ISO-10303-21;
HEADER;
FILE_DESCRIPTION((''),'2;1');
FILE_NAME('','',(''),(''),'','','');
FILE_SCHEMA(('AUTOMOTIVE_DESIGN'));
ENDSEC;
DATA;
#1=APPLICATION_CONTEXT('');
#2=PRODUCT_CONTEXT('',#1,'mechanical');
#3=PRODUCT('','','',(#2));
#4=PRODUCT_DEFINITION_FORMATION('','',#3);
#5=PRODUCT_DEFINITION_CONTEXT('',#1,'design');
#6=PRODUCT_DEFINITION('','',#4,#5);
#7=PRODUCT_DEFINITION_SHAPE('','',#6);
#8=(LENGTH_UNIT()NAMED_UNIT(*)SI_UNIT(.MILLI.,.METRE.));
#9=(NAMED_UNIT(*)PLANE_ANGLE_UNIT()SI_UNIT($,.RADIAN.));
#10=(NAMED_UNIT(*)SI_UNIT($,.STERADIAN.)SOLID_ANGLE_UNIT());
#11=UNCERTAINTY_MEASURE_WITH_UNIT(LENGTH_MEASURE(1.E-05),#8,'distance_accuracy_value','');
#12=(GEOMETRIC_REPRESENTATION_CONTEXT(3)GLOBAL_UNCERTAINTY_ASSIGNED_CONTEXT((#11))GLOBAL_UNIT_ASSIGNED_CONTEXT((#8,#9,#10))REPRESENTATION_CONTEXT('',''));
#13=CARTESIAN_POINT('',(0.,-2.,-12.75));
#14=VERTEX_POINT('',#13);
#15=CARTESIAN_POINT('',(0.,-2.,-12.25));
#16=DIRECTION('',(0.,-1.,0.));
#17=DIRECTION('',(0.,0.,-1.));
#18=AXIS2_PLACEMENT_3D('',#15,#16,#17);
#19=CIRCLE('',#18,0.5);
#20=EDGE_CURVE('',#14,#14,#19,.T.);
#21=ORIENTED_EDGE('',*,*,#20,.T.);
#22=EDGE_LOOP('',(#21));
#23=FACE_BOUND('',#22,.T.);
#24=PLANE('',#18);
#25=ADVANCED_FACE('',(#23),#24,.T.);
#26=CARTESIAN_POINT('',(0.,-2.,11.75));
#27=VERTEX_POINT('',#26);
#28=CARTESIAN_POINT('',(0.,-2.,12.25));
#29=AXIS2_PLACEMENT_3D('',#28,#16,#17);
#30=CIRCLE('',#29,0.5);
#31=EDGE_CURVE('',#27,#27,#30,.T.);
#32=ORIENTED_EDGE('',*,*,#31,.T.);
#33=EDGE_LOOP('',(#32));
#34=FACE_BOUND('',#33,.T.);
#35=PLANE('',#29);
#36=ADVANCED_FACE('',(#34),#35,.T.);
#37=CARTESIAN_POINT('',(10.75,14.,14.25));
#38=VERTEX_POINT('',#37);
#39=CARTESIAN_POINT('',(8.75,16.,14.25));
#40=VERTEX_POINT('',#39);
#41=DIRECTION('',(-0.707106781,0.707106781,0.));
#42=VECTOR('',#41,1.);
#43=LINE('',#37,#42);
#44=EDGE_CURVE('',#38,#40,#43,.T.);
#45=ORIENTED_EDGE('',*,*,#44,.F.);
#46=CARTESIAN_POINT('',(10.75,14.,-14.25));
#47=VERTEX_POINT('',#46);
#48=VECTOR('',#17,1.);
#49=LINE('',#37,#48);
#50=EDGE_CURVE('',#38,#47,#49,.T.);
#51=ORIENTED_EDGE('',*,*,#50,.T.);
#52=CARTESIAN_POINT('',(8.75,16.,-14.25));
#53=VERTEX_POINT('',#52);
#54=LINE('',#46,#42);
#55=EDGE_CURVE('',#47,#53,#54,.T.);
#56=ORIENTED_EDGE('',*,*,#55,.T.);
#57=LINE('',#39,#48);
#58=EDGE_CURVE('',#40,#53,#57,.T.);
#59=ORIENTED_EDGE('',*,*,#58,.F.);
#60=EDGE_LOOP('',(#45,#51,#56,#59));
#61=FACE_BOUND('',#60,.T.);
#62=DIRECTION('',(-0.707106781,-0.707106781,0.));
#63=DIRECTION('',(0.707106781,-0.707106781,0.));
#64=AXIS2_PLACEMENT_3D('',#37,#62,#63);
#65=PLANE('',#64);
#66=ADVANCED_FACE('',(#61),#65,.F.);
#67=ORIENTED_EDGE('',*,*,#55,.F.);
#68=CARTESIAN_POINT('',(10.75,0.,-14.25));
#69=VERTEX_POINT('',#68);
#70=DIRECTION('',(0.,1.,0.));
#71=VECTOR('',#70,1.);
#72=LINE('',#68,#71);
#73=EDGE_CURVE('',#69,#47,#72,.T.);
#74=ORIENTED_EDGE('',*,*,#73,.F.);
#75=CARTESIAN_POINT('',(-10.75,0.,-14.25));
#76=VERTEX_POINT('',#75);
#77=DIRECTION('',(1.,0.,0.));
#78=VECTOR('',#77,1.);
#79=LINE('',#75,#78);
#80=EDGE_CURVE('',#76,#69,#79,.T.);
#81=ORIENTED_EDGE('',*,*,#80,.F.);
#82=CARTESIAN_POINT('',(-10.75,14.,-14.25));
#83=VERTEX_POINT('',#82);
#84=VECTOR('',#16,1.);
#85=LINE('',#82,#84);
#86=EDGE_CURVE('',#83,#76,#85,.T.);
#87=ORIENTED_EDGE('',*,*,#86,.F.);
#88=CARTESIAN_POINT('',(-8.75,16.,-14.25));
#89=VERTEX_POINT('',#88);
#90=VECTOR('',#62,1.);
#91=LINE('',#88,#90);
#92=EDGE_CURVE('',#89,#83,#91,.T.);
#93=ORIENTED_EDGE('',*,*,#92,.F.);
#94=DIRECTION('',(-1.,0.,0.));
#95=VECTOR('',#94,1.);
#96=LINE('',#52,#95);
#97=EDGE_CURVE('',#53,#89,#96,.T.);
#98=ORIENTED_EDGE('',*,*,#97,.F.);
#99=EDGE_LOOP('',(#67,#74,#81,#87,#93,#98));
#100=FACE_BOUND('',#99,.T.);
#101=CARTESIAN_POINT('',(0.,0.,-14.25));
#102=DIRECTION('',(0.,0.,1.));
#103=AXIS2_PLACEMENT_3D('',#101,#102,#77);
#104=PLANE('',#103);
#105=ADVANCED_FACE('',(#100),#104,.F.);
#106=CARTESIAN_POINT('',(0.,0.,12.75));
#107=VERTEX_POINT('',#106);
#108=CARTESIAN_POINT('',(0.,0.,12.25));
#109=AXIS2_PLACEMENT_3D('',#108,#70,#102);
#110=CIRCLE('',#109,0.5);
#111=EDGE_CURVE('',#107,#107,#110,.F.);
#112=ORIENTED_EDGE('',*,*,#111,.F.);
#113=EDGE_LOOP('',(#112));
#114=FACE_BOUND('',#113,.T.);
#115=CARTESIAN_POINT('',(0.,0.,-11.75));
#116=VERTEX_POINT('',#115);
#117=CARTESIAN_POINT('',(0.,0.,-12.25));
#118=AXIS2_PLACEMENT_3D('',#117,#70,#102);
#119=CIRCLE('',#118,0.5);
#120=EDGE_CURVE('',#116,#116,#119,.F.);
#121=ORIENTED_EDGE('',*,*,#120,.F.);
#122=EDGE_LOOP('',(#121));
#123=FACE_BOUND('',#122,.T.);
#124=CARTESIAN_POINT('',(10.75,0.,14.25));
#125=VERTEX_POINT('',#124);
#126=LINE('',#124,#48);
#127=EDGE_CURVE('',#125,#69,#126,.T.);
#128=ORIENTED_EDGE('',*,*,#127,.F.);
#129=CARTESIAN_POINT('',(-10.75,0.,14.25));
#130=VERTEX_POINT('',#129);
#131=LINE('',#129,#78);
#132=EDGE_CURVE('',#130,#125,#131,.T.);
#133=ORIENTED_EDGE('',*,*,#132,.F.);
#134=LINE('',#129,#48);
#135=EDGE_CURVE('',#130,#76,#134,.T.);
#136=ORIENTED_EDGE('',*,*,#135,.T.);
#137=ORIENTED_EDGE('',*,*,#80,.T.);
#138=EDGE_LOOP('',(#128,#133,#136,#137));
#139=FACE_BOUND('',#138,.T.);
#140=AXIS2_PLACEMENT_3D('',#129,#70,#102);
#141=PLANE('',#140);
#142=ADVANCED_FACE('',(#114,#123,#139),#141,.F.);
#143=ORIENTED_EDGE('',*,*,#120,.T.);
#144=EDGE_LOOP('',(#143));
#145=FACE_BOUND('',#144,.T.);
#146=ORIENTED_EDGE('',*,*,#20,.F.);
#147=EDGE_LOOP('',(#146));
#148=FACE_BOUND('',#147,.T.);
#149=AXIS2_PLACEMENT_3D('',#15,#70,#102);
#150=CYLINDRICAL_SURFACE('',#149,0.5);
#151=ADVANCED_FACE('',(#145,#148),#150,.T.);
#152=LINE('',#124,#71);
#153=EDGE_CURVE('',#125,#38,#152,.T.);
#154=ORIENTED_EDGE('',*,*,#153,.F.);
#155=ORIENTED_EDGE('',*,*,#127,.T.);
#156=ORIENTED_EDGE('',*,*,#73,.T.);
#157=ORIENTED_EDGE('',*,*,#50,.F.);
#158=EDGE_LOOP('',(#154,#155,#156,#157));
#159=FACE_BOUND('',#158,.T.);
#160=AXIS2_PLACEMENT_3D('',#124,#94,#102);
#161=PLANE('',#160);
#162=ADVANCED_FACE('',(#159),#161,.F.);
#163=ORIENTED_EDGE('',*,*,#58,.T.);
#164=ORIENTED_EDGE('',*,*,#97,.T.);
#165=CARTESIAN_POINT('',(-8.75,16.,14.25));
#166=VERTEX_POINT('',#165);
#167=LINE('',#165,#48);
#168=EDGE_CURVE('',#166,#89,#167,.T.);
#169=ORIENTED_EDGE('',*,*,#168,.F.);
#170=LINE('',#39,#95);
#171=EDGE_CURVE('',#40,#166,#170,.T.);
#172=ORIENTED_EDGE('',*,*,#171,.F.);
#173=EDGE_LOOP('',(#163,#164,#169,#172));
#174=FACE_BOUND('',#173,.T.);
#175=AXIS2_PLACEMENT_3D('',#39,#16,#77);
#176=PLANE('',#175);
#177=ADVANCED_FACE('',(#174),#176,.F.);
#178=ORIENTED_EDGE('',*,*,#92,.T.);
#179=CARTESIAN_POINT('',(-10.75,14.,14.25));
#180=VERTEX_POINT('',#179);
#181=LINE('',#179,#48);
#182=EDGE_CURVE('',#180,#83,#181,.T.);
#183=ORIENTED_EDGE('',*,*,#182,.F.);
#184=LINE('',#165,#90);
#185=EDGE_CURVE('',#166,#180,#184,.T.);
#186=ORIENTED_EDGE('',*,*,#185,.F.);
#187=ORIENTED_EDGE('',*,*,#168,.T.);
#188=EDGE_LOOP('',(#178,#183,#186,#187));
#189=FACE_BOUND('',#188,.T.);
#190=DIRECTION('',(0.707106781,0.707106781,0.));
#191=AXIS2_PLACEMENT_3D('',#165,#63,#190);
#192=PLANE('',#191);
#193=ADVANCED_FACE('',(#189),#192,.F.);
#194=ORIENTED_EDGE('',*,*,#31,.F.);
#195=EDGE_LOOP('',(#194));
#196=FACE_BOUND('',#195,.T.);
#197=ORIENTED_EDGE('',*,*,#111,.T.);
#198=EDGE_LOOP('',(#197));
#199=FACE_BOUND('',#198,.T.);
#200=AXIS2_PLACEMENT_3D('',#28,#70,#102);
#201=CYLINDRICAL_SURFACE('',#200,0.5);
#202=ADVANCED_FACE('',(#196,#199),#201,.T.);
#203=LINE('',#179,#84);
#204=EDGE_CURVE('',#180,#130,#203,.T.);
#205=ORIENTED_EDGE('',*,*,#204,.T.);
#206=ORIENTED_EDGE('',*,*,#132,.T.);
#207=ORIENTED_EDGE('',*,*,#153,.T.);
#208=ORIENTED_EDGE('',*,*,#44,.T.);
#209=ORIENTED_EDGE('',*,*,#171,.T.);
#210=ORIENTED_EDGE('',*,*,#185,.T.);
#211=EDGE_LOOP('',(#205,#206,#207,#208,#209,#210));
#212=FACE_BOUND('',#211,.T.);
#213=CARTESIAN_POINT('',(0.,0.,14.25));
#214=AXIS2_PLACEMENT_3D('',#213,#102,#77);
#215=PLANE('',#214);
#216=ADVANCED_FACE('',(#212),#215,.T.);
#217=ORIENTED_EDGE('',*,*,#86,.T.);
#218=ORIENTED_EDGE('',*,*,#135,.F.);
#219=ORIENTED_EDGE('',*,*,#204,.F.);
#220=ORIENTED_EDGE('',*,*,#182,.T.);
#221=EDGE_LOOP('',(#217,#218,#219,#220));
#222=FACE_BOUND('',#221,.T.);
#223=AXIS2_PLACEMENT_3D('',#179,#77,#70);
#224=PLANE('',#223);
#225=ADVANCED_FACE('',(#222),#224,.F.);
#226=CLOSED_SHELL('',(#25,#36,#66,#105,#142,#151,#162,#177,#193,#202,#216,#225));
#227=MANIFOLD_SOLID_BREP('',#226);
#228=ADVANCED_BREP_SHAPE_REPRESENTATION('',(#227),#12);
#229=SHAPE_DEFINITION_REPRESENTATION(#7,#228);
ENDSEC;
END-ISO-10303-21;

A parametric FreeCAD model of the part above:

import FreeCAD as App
import Part
import Sketcher

V = App.Vector
Q = App.Units.Quantity

doc = App.newDocument("Part")
body = doc.addObject("PartDesign::Body", "Body")

# Sketch on XY plane
sketch1 = body.newObject("Sketcher::SketchObject", "Sketch")
sketch1.AttachmentSupport = (doc.getObject("XY_Plane"), [""])
sketch1.MapMode = "FlatFace"
sketch1.addGeometry(Part.LineSegment(V(-10.8, 0, 0), V(10.8, 0, 0)), False)
sketch1.addGeometry(Part.LineSegment(V(10.8, 0, 0), V(10.8, 14, 0)), False)
sketch1.addGeometry(Part.LineSegment(V(10.8, 14, 0), V(8.8, 16, 0)), False)
sketch1.addGeometry(Part.LineSegment(V(8.8, 16, 0), V(-8.8, 16, 0)), False)
sketch1.addGeometry(Part.LineSegment(V(-8.8, 16, 0), V(-10.8, 14, 0)), False)
sketch1.addGeometry(Part.LineSegment(V(-10.8, 14, 0), V(-10.8, 0, 0)), False)
sketch1.addConstraint(Sketcher.Constraint("Coincident", 0, 2, 1, 1))
sketch1.addConstraint(Sketcher.Constraint("Coincident", 1, 2, 2, 1))
sketch1.addConstraint(Sketcher.Constraint("Coincident", 2, 2, 3, 1))
sketch1.addConstraint(Sketcher.Constraint("Coincident", 3, 2, 4, 1))
sketch1.addConstraint(Sketcher.Constraint("Coincident", 4, 2, 5, 1))
sketch1.addConstraint(Sketcher.Constraint("Coincident", 5, 2, 0, 1))
sketch1.addConstraint(Sketcher.Constraint("Horizontal", 0))
sketch1.addConstraint(Sketcher.Constraint("Vertical", 1))
sketch1.addConstraint(Sketcher.Constraint("Horizontal", 3))
sketch1.addConstraint(Sketcher.Constraint("Vertical", 5))
sketch1.addConstraint(Sketcher.Constraint("Symmetric", 0, 2, 5, 2, -1, 1))
sketch1.addConstraint(Sketcher.Constraint("Perpendicular", 2, 4))
sketch1.addConstraint(Sketcher.Constraint("Horizontal", 1, 2, 4, 2))
sketch1.addConstraint(Sketcher.Constraint("Equal", 2, 4))
sketch1.addConstraint(Sketcher.Constraint("DistanceY", 1, 1, 1, 2, Q("14 mm")))
sketch1.addConstraint(Sketcher.Constraint("DistanceX", 0, 1, 0, 2, Q("21.5 mm")))
sketch1.addConstraint(Sketcher.Constraint("DistanceX", 3, 2, 3, 1, Q("17.5 mm")))
pad1 = body.newObject("PartDesign::Pad", "Pad")
pad1.Profile = sketch1
pad1.Length = 28.5
pad1.Midplane = True

# Sketch on XZ plane
sketch2 = body.newObject("Sketcher::SketchObject", "Sketch001")
sketch2.AttachmentSupport = (doc.getObject("XZ_Plane"), [""])
sketch2.MapMode = "FlatFace"
sketch2.addGeometry(Part.Circle(V(0, 12.2, 0), V(0, 0, 1), 0.5), False)
sketch2.addGeometry(Part.Circle(V(0, -12.2, 0), V(0, 0, 1), 0.5), False)
sketch2.addConstraint(Sketcher.Constraint("Equal", 0, 1))
sketch2.addConstraint(Sketcher.Constraint("Symmetric", 0, 3, 1, 3, -1, 1))
sketch2.addConstraint(Sketcher.Constraint("PointOnObject", 0, 3, -2))
sketch2.addConstraint(Sketcher.Constraint("Diameter", 0, Q("1 mm")))
sketch2.addConstraint(Sketcher.Constraint("DistanceY", 1, 3, 0, 3, Q("24.5 mm")))
pad2 = body.newObject("PartDesign::Pad", "Pad001")
pad2.Profile = sketch2
pad2.Length = 2

doc.recompute()
